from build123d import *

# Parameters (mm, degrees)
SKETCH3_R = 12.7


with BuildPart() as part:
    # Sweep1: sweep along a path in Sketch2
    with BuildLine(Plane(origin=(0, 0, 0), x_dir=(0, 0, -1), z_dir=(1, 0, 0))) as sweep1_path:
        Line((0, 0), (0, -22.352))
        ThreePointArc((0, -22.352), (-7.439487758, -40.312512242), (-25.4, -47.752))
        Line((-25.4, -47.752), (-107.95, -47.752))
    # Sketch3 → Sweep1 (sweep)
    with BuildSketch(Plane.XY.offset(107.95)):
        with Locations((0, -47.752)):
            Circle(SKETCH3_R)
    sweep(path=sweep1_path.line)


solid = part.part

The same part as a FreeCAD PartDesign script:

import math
import FreeCAD as App
import Part
import Sketcher
from FreeCAD import Vector
Q = App.Units.Quantity

doc = App.newDocument("Part")
body = doc.addObject("PartDesign::Body", "Body")

# Sketch on XY plane
sketch1 = body.newObject("Sketcher::SketchObject", "Sketch")
sketch1.AttachmentSupport = (doc.getObject("XY_Plane"), [""])
sketch1.MapMode = "FlatFace"
sketch1.AttachmentOffset = App.Placement(Vector(0, 0, 4.25 * 25.4), App.Rotation())
sketch1.addGeometry(Part.Circle(Vector(0, -48, 0), Vector(0, 0, 1), 13), False)
sketch1.addConstraint([
    Sketcher.Constraint("PointOnObject", 0, 3, -2),
    Sketcher.Constraint("Diameter", 0, Q("1 in")),
    Sketcher.Constraint("DistanceY", 0, 3, -1, 1, Q("1.88 in")),
])

# Sketch on YZ plane
sketch2 = body.newObject("Sketcher::SketchObject", "Sketch001")
sketch2.AttachmentSupport = (doc.getObject("YZ_Plane"), [""])
sketch2.MapMode = "FlatFace"
sketch2.addGeometry([
    Part.LineSegment(Vector(0, 0, 0), Vector(-22, 0, 0)),
    Part.ArcOfCircle(Part.Circle(Vector(-22, 25, 0), Vector(0, 0, 1), 25), math.radians(180), math.radians(270)),
    Part.LineSegment(Vector(-48, 25, 0), Vector(-48, 108, 0)),
], False)
sketch2.addConstraint([
    Sketcher.Constraint("Tangent", 0, 2, 1, 2),
    Sketcher.Constraint("Tangent", 1, 1, 2, 1),
    Sketcher.Constraint("Horizontal", 0),
    Sketcher.Constraint("Vertical", 2),
    Sketcher.Constraint("Coincident", 0, 1, -1, 1),
    Sketcher.Constraint("Radius", 1, Q("1 in")),
    Sketcher.Constraint("DistanceX", 0, 2, 0, 1, Q("0.88 in")),
    Sketcher.Constraint("DistanceY", 2, 1, 2, 2, Q("3.25 in")),
])
doc.recompute()

additivepipe = body.newObject("PartDesign::AdditivePipe", "AdditivePipe")
additivepipe.Profile = sketch1
additivepipe.Spine = (sketch2, ["Edge1", "Edge2", "Edge3"])

doc.recompute()
